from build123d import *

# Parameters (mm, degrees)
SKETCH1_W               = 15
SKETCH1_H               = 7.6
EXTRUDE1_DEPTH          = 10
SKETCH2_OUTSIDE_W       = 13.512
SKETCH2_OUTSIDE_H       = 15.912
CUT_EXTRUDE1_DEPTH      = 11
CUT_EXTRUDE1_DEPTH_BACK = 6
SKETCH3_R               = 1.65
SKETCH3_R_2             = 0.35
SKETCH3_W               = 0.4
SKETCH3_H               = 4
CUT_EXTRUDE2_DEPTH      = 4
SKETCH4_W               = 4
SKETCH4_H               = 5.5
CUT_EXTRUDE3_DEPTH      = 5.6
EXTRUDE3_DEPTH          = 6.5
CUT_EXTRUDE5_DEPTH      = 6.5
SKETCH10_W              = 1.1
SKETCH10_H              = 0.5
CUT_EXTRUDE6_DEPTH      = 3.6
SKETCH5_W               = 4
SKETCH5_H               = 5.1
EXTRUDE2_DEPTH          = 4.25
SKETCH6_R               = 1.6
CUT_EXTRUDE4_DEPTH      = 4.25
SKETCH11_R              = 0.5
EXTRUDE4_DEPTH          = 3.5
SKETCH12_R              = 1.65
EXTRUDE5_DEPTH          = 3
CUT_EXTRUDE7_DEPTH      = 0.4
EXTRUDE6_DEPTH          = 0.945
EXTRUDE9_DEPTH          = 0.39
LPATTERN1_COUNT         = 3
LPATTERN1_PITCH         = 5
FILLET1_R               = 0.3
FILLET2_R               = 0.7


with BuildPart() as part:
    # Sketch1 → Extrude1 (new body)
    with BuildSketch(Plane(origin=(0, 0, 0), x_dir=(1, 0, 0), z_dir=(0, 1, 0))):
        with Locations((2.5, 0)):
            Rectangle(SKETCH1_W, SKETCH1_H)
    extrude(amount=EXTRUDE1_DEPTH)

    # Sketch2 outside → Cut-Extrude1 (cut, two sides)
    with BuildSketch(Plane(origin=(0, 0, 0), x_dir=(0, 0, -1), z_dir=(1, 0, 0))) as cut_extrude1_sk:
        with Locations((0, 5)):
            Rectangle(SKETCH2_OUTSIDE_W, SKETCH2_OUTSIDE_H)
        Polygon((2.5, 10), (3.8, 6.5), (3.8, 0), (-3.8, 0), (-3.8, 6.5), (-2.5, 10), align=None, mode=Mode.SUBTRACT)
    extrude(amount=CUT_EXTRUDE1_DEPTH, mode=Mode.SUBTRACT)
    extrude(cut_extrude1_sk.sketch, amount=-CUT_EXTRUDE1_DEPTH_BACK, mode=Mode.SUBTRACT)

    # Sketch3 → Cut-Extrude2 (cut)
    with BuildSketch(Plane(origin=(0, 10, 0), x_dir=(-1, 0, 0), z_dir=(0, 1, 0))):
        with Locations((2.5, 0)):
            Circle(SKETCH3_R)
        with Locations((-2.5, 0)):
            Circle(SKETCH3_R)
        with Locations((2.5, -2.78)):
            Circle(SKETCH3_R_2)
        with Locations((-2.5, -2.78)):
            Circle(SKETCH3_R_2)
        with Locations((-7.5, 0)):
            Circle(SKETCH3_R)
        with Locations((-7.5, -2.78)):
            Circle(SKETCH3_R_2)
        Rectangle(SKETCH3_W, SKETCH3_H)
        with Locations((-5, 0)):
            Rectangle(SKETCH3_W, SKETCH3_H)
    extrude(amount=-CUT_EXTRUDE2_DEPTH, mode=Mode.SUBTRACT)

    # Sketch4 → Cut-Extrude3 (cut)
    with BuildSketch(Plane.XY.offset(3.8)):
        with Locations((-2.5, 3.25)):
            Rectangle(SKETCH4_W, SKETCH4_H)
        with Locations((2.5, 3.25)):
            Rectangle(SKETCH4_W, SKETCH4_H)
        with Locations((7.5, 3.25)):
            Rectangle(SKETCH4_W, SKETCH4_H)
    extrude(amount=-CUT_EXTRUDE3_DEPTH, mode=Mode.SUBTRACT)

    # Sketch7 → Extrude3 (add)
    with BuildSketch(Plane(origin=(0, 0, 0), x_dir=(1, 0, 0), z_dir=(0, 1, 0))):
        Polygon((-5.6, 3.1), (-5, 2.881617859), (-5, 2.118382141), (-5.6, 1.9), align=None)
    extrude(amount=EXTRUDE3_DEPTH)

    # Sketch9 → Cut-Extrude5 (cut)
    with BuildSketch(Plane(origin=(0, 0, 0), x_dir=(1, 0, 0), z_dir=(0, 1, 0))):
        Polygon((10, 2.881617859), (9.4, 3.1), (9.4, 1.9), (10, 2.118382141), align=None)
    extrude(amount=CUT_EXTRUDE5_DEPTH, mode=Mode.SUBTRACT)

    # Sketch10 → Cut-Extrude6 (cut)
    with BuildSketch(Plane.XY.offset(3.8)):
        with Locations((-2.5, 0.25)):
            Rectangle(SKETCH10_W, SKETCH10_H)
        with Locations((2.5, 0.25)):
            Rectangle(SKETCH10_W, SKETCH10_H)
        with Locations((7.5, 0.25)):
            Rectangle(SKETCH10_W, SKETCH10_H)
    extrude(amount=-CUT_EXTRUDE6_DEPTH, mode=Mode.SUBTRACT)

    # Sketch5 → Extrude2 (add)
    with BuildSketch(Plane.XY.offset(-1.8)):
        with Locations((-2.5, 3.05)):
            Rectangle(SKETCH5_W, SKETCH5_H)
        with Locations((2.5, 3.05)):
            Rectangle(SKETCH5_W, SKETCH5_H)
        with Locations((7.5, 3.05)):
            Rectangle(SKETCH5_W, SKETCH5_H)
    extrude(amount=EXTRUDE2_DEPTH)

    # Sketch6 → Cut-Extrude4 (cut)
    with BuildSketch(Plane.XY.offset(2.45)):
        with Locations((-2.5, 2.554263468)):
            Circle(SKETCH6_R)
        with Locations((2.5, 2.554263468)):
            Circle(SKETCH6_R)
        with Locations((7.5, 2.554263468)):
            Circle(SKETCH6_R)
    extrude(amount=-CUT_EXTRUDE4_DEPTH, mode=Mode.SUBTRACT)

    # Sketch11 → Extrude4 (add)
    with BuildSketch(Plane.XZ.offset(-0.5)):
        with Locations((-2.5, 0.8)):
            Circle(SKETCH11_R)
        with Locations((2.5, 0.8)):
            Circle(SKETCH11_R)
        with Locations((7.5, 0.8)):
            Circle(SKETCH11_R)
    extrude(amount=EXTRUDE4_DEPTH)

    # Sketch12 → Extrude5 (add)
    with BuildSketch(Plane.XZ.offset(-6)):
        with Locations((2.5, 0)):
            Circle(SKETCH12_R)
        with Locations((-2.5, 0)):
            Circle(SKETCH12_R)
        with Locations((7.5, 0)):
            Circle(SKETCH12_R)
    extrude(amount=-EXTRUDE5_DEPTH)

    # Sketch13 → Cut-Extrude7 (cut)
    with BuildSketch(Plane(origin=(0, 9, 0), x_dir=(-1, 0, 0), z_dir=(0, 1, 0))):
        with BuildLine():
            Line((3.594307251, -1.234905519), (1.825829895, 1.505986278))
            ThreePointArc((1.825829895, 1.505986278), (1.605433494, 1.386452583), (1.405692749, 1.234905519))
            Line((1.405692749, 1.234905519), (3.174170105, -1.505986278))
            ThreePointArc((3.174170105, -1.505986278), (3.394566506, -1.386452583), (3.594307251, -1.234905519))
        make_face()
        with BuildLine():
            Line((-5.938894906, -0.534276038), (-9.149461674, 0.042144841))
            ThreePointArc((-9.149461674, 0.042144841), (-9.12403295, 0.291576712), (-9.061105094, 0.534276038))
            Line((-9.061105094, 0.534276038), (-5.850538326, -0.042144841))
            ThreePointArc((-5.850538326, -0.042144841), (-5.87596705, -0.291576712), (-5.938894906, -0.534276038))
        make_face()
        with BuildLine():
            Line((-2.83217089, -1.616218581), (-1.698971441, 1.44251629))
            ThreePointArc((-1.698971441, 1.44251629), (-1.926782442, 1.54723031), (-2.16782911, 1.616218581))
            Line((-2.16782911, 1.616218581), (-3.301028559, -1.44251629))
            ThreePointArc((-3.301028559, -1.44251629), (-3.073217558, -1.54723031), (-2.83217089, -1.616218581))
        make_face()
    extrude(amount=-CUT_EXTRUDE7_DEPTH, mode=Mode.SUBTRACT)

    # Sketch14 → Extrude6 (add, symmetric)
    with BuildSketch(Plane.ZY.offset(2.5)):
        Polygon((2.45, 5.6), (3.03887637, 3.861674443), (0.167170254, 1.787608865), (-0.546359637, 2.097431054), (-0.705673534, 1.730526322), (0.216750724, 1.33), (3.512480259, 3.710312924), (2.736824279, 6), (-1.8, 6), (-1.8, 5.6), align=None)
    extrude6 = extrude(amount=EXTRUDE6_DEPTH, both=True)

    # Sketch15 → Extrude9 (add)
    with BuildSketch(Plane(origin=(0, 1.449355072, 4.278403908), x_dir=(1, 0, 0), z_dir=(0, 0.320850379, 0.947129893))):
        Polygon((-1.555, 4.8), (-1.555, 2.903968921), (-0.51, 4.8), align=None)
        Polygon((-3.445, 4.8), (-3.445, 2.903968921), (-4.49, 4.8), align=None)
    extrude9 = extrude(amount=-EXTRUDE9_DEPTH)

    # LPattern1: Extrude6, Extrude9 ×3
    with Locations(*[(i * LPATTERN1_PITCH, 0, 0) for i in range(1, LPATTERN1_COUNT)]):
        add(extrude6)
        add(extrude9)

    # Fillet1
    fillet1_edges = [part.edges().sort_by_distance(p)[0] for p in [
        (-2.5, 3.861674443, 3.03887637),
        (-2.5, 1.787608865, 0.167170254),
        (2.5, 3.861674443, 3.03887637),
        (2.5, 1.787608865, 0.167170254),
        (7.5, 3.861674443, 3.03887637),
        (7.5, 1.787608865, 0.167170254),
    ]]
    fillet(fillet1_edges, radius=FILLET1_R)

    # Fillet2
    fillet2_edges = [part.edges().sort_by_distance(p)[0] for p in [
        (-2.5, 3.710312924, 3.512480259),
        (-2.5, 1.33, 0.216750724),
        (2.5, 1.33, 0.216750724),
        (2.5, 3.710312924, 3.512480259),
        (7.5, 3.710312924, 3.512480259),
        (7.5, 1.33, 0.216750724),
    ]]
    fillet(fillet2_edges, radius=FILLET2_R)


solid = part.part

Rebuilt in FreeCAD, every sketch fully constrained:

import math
import FreeCAD as App
import Part
import Sketcher
Q = App.Units.Quantity


def edges_at(feature, points):
    """Names of the edges that pass closest to the given points."""
    edges = feature.Shape.Edges
    near = lambda p: min(range(len(edges)), key=lambda i: edges[i].distToShape(Part.Vertex(*p))[0])
    return sorted({f"Edge{near(p) + 1}" for p in points})

doc = App.newDocument("Part")
params = doc.addObject("Spreadsheet::Sheet", "Params")
for row, (alias, value) in enumerate([
    ("sketch1_width", "15 mm"),
    ("sketch1_height", "7.6 mm"),
    ("pad1_length", "10 mm"),
    ("sketch2_height", "5 mm"),
    ("sketch2_width", "6.5 mm"),
    ("sketch2_height2", "7.6 mm"),
    ("sketch3_diameter", "3.3 mm"),
    ("sketch3_diameter2", "0.7 mm"),
    ("sketch3_height", "4 mm"),
    ("sketch3_width", "0.4 mm"),
    ("pocket2_length", "4 mm"),
    ("sketch4_width", "4 mm"),
    ("sketch4_height", "5.5 mm"),
    ("pocket3_length", "5.6 mm"),
    ("sketch5_height", "1.2 mm"),
    ("pad2_length", "6.5 mm"),
    ("sketch6_height", "1.2 mm"),
    ("pocket4_length", "6.5 mm"),
    ("sketch7_width", "1.1 mm"),
    ("sketch7_height", "0.5 mm"),
    ("pocket5_length", "3.6 mm"),
    ("sketch8_width", "4 mm"),
    ("sketch8_height", "5.1 mm"),
    ("pad3_length", "4.25 mm"),
    ("sketch9_diameter", "3.2 mm"),
    ("pocket6_length", "4.25 mm"),
    ("sketch10_diameter", "1 mm"),
    ("pad4_length", "3.5 mm"),
    ("sketch11_diameter", "3.3 mm"),
    ("pad5_length", "3 mm"),
    ("sketch12_radius", "1.65 mm"),
    ("pocket7_length", "0.4 mm"),
    ("sketch13_width", "0.4 mm"),
    ("sketch13_length", "0.4 mm"),
    ("sketch13_height", "4.25 mm"),
    ("pad6_length", "1.89 mm"),
    ("pad7_length", "0.39 mm"),
    ("linearpattern_pitch", "5 mm"),
    ("fillet_radius", "0.3 mm"),
    ("fillet2_radius", "0.7 mm"),
], start=1):
    params.set(f"A{row}", alias)
    params.set(f"B{row}", "=" + value)
    params.setAlias(f"B{row}", alias)

body = doc.addObject("PartDesign::Body", "Body")

# Sketch on XZ plane
sketch1 = doc.addObject("Sketcher::SketchObject", "Sketch")
body.addObject(sketch1)
sketch1.AttachmentSupport = (doc.XZ_Plane, [""])
sketch1.MapMode = "FlatFace"
sketch1.addGeometry([
    Part.LineSegment(App.Vector(-5, -4, 0), App.Vector(-5, 4, 0)),
    Part.LineSegment(App.Vector(-5, 4, 0), App.Vector(10, 4, 0)),
    Part.LineSegment(App.Vector(10, 4, 0), App.Vector(10, -4, 0)),
    Part.LineSegment(App.Vector(10, -4, 0), App.Vector(-5, -4, 0)),
], False)
sketch1.addConstraint([
    Sketcher.Constraint("Coincident", 0, 2, 1, 1),
    Sketcher.Constraint("Coincident", 1, 2, 2, 1),
    Sketcher.Constraint("Coincident", 2, 2, 3, 1),
    Sketcher.Constraint("Coincident", 3, 2, 0, 1),
    Sketcher.Constraint("Vertical", 0),
    Sketcher.Constraint("Horizontal", 1),
    Sketcher.Constraint("Vertical", 2),
    Sketcher.Constraint("Horizontal", 3),
    Sketcher.Constraint("DistanceX", 1, 1, 1, 2, Q("15 mm")),
    Sketcher.Constraint("DistanceY", 0, 1, 0, 2, Q("7.6 mm")),
    Sketcher.Constraint("DistanceX", 0, 2, -1, 1, Q("5 mm")),
    Sketcher.Constraint("DistanceY", -1, 1, 0, 2, Q("3.8 mm")),
])
sketch1.setExpression("Constraints[8]", "Params.sketch1_width")
sketch1.setExpression("Constraints[9]", "Params.sketch1_height")
pad1 = doc.addObject("PartDesign::Pad", "Pad")
body.addObject(pad1)
pad1.Profile = sketch1
pad1.setExpression("Length", "Params.pad1_length")
pad1.Reversed = True

# Sketch on YZ plane
sketch2 = doc.addObject("Sketcher::SketchObject", "Sketch001")
body.addObject(sketch2)
sketch2.AttachmentSupport = (doc.YZ_Plane, [""])
sketch2.MapMode = "FlatFace"
sketch2.addGeometry([
    Part.LineSegment(App.Vector(13, 6.8, 0), App.Vector(-3, 6.8, 0)),  # 0
    Part.LineSegment(App.Vector(-3, 6.8, 0), App.Vector(-3, -6.8, 0)),  # 1
    Part.LineSegment(App.Vector(-3, -6.8, 0), App.Vector(13, -6.8, 0)),  # 2
    Part.LineSegment(App.Vector(13, -6.8, 0), App.Vector(13, 6.8, 0)),  # 3
    Part.LineSegment(App.Vector(10, 2.5, 0), App.Vector(10, -2.5, 0)),  # 4
    Part.LineSegment(App.Vector(10, -2.5, 0), App.Vector(6.5, -3.8, 0)),  # 5
    Part.LineSegment(App.Vector(6.5, -3.8, 0), App.Vector(0, -3.8, 0)),  # 6
    Part.LineSegment(App.Vector(0, -3.8, 0), App.Vector(0, 3.8, 0)),  # 7
    Part.LineSegment(App.Vector(0, 3.8, 0), App.Vector(6.5, 3.8, 0)),  # 8
    Part.LineSegment(App.Vector(6.5, 3.8, 0), App.Vector(10, 2.5, 0)),  # 9
], False)
sketch2.addConstraint([
    Sketcher.Constraint("Coincident", 0, 2, 1, 1),
    Sketcher.Constraint("Coincident", 1, 2, 2, 1),
    Sketcher.Constraint("Coincident", 2, 2, 3, 1),
    Sketcher.Constraint("Coincident", 3, 2, 0, 1),
    Sketcher.Constraint("Coincident", 4, 2, 5, 1),
    Sketcher.Constraint("Coincident", 5, 2, 6, 1),
    Sketcher.Constraint("Coincident", 6, 2, 7, 1),
    Sketcher.Constraint("Coincident", 7, 2, 8, 1),
    Sketcher.Constraint("Coincident", 8, 2, 9, 1),
    Sketcher.Constraint("Coincident", 9, 2, 4, 1),
    Sketcher.Constraint("Horizontal", 0),
    Sketcher.Constraint("Vertical", 1),
    Sketcher.Constraint("Horizontal", 2),
    Sketcher.Constraint("Vertical", 3),
    Sketcher.Constraint("Vertical", 4),
    Sketcher.Constraint("Horizontal", 6),
    Sketcher.Constraint("Vertical", 7),
    Sketcher.Constraint("Horizontal", 8),
    Sketcher.Constraint("Symmetric", 6, 2, 7, 2, -1, 1),
    Sketcher.Constraint("Vertical", 5, 2, 8, 2),
    Sketcher.Constraint("Equal", 5, 9),
    Sketcher.Constraint("DistanceY", 4, 2, 4, 1, Q("5 mm")),
    Sketcher.Constraint("DistanceX", 6, 2, 6, 1, Q("6.5 mm")),
    Sketcher.Constraint("DistanceY", 7, 1, 7, 2, Q("7.6 mm")),
    Sketcher.Constraint("DistanceX", -1, 1, 4, 2, Q("10 mm")),
    Sketcher.Constraint("DistanceX", 0, 2, 0, 1, Q("15.912 mm")),
    Sketcher.Constraint("DistanceY", 1, 2, 1, 1, Q("13.512 mm")),
    Sketcher.Constraint("DistanceX", 0, 2, -1, 1, Q("2.956 mm")),
    Sketcher.Constraint("DistanceY", -1, 1, 0, 2, Q("6.756 mm")),
])
sketch2.setExpression("Constraints[21]", "Params.sketch2_height")
sketch2.setExpression("Constraints[22]", "Params.sketch2_width")
sketch2.setExpression("Constraints[23]", "Params.sketch2_height2")
pocket1 = doc.addObject("PartDesign::Pocket", "Pocket")
body.addObject(pocket1)
pocket1.Profile = sketch2
pocket1.Type = "ThroughAll"
pocket1.Midplane = True

# Sketch on XZ plane
sketch3 = doc.addObject("Sketcher::SketchObject", "Sketch002")
body.addObject(sketch3)
sketch3.AttachmentSupport = (doc.XZ_Plane, [""])
sketch3.MapMode = "FlatFace"
sketch3.AttachmentOffset = App.Placement(App.Vector(0, 0, -10), App.Rotation())
sketch3.addGeometry([
    Part.Circle(App.Vector(-2.5, 0, 0), App.Vector(0, 0, 1), 1.65),  # 0
    Part.Circle(App.Vector(2.5, 0, 0), App.Vector(0, 0, 1), 1.65),  # 1
    Part.Circle(App.Vector(-2.5, -2.78, 0), App.Vector(0, 0, 1), 0.35),  # 2
    Part.Circle(App.Vector(2.5, -2.78, 0), App.Vector(0, 0, 1), 0.35),  # 3
    Part.Circle(App.Vector(7.5, 0, 0), App.Vector(0, 0, 1), 1.65),  # 4
    Part.Circle(App.Vector(7.5, -2.78, 0), App.Vector(0, 0, 1), 0.35),  # 5
    Part.LineSegment(App.Vector(0.2, 2, 0), App.Vector(0.2, -2, 0)),  # 6
    Part.LineSegment(App.Vector(0.2, -2, 0), App.Vector(-0.2, -2, 0)),  # 7
    Part.LineSegment(App.Vector(-0.2, -2, 0), App.Vector(-0.2, 2, 0)),  # 8
    Part.LineSegment(App.Vector(-0.2, 2, 0), App.Vector(0.2, 2, 0)),  # 9
    Part.LineSegment(App.Vector(5.2, 2, 0), App.Vector(5.2, -2, 0)),  # 10
    Part.LineSegment(App.Vector(5.2, -2, 0), App.Vector(4.8, -2, 0)),  # 11
    Part.LineSegment(App.Vector(4.8, -2, 0), App.Vector(4.8, 2, 0)),  # 12
    Part.LineSegment(App.Vector(4.8, 2, 0), App.Vector(5.2, 2, 0)),  # 13
], False)
sketch3.addConstraint([
    Sketcher.Constraint("Coincident", 6, 2, 7, 1),
    Sketcher.Constraint("Coincident", 7, 2, 8, 1),
    Sketcher.Constraint("Coincident", 8, 2, 9, 1),
    Sketcher.Constraint("Coincident", 9, 2, 6, 1),
    Sketcher.Constraint("Coincident", 10, 2, 11, 1),
    Sketcher.Constraint("Coincident", 11, 2, 12, 1),
    Sketcher.Constraint("Coincident", 12, 2, 13, 1),
    Sketcher.Constraint("Coincident", 13, 2, 10, 1),
    Sketcher.Constraint("Vertical", 6),
    Sketcher.Constraint("Horizontal", 7),
    Sketcher.Constraint("Vertical", 8),
    Sketcher.Constraint("Horizontal", 9),
    Sketcher.Constraint("Vertical", 10),
    Sketcher.Constraint("Horizontal", 11),
    Sketcher.Constraint("Vertical", 12),
    Sketcher.Constraint("Horizontal", 13),
    Sketcher.Constraint("Equal", 0, 1),
    Sketcher.Constraint("Equal", 2, 3),
    Sketcher.Constraint("Equal", 1, 4),
    Sketcher.Constraint("Equal", 3, 5),
    Sketcher.Constraint("Symmetric", 0, 3, 1, 3, -1, 1),
    Sketcher.Constraint("Symmetric", 6, 2, 8, 2, -1, 1),
    Sketcher.Constraint("Symmetric", 2, 3, 3, 3, -2),
    Sketcher.Constraint("PointOnObject", 0, 3, -1),
    Sketcher.Constraint("PointOnObject", 4, 3, -1),
    Sketcher.Constraint("Horizontal", 3, 3, 5, 3),
    Sketcher.Constraint("Horizontal", 7, 2, 10, 2),
    Sketcher.Constraint("Horizontal", 9, 2, 12, 2),
    Sketcher.Constraint("Vertical", 0, 3, 2, 3),
    Sketcher.Constraint("Vertical", 4, 3, 5, 3),
    Sketcher.Constraint("Equal", 9, 11),
    Sketcher.Constraint("Diameter", 0, Q("3.3 mm")),
    Sketcher.Constraint("Diameter", 2, Q("0.7 mm")),
    Sketcher.Constraint("DistanceY", 6, 2, 6, 1, Q("4 mm")),
    Sketcher.Constraint("DistanceX", 7, 2, 7, 1, Q("0.4 mm")),
    Sketcher.Constraint("DistanceX", 0, 3, 1, 3, Q("5 mm")),
    Sketcher.Constraint("DistanceX", 1, 3, 4, 3, Q("5 mm")),
    Sketcher.Constraint("DistanceX", 6, 2, 10, 2, Q("5 mm")),
    Sketcher.Constraint("DistanceY", 2, 3, -1, 1, Q("2.78 mm")),
])
sketch3.setExpression("Constraints[31]", "Params.sketch3_diameter")
sketch3.setExpression("Constraints[32]", "Params.sketch3_diameter2")
sketch3.setExpression("Constraints[33]", "Params.sketch3_height")
sketch3.setExpression("Constraints[34]", "Params.sketch3_width")
pocket2 = doc.addObject("PartDesign::Pocket", "Pocket001")
body.addObject(pocket2)
pocket2.Profile = sketch3
pocket2.setExpression("Length", "Params.pocket2_length")
pocket2.Reversed = True

# Sketch on XY plane
sketch4 = doc.addObject("Sketcher::SketchObject", "Sketch003")
body.addObject(sketch4)
sketch4.AttachmentSupport = (doc.XY_Plane, [""])
sketch4.MapMode = "FlatFace"
sketch4.AttachmentOffset = App.Placement(App.Vector(0, 0, 3.8), App.Rotation())
sketch4.addGeometry([
    Part.LineSegment(App.Vector(-4.5, 6, 0), App.Vector(-4.5, 0.5, 0)),  # 0
    Part.LineSegment(App.Vector(-4.5, 0.5, 0), App.Vector(-0.5, 0.5, 0)),  # 1
    Part.LineSegment(App.Vector(-0.5, 0.5, 0), App.Vector(-0.5, 6, 0)),  # 2
    Part.LineSegment(App.Vector(-0.5, 6, 0), App.Vector(-4.5, 6, 0)),  # 3
    Part.LineSegment(App.Vector(0.5, 6, 0), App.Vector(0.5, 0.5, 0)),  # 4
    Part.LineSegment(App.Vector(0.5, 0.5, 0), App.Vector(4.5, 0.5, 0)),  # 5
    Part.LineSegment(App.Vector(4.5, 0.5, 0), App.Vector(4.5, 6, 0)),  # 6
    Part.LineSegment(App.Vector(4.5, 6, 0), App.Vector(0.5, 6, 0)),  # 7
    Part.LineSegment(App.Vector(5.5, 6, 0), App.Vector(5.5, 0.5, 0)),  # 8
    Part.LineSegment(App.Vector(5.5, 0.5, 0), App.Vector(9.5, 0.5, 0)),  # 9
    Part.LineSegment(App.Vector(9.5, 0.5, 0), App.Vector(9.5, 6, 0)),  # 10
    Part.LineSegment(App.Vector(9.5, 6, 0), App.Vector(5.5, 6, 0)),  # 11
], False)
sketch4.addConstraint([
    Sketcher.Constraint("Coincident", 0, 2, 1, 1),
    Sketcher.Constraint("Coincident", 1, 2, 2, 1),
    Sketcher.Constraint("Coincident", 2, 2, 3, 1),
    Sketcher.Constraint("Coincident", 3, 2, 0, 1),
    Sketcher.Constraint("Coincident", 4, 2, 5, 1),
    Sketcher.Constraint("Coincident", 5, 2, 6, 1),
    Sketcher.Constraint("Coincident", 6, 2, 7, 1),
    Sketcher.Constraint("Coincident", 7, 2, 4, 1),
    Sketcher.Constraint("Coincident", 8, 2, 9, 1),
    Sketcher.Constraint("Coincident", 9, 2, 10, 1),
    Sketcher.Constraint("Coincident", 10, 2, 11, 1),
    Sketcher.Constraint("Coincident", 11, 2, 8, 1),
    Sketcher.Constraint("Vertical", 0),
    Sketcher.Constraint("Horizontal", 1),
    Sketcher.Constraint("Vertical", 2),
    Sketcher.Constraint("Horizontal", 3),
    Sketcher.Constraint("Vertical", 4),
    Sketcher.Constraint("Horizontal", 5),
    Sketcher.Constraint("Vertical", 6),
    Sketcher.Constraint("Horizontal", 7),
    Sketcher.Constraint("Vertical", 8),
    Sketcher.Constraint("Horizontal", 9),
    Sketcher.Constraint("Vertical", 10),
    Sketcher.Constraint("Horizontal", 11),
    Sketcher.Constraint("Symmetric", 1, 2, 4, 2, -2),
    Sketcher.Constraint("Symmetric", 3, 2, 6, 2, -2),
    Sketcher.Constraint("Horizontal", 5, 2, 8, 2),
    Sketcher.Constraint("Horizontal", 7, 2, 10, 2),
    Sketcher.Constraint("Equal", 7, 9),
    Sketcher.Constraint("DistanceX", 1, 1, 1, 2, Q("4 mm")),
    Sketcher.Constraint("DistanceY", 0, 2, 0, 1, Q("5.5 mm")),
    Sketcher.Constraint("DistanceY", -1, 1, 2, 2, Q("6 mm")),
    Sketcher.Constraint("DistanceX", 1, 2, 4, 2, Q("1 mm")),
    Sketcher.Constraint("DistanceX", 5, 2, 8, 2, Q("1 mm")),
])
sketch4.setExpression("Constraints[29]", "Params.sketch4_width")
sketch4.setExpression("Constraints[30]", "Params.sketch4_height")
pocket3 = doc.addObject("PartDesign::Pocket", "Pocket002")
body.addObject(pocket3)
pocket3.Profile = sketch4
pocket3.setExpression("Length", "Params.pocket3_length")

# Sketch on XZ plane
sketch5 = doc.addObject("Sketcher::SketchObject", "Sketch004")
body.addObject(sketch5)
sketch5.AttachmentSupport = (doc.XZ_Plane, [""])
sketch5.MapMode = "FlatFace"
sketch5.addGeometry([
    Part.LineSegment(App.Vector(-5, -2.9, 0), App.Vector(-5.6, -3.1, 0)),
    Part.LineSegment(App.Vector(-5.6, -3.1, 0), App.Vector(-5.6, -1.9, 0)),
    Part.LineSegment(App.Vector(-5.6, -1.9, 0), App.Vector(-5, -2.1, 0)),
    Part.LineSegment(App.Vector(-5, -2.1, 0), App.Vector(-5, -2.9, 0)),
], False)
sketch5.addConstraint([
    Sketcher.Constraint("Coincident", 0, 2, 1, 1),
    Sketcher.Constraint("Coincident", 1, 2, 2, 1),
    Sketcher.Constraint("Coincident", 2, 2, 3, 1),
    Sketcher.Constraint("Coincident", 3, 2, 0, 1),
    Sketcher.Constraint("Vertical", 1),
    Sketcher.Constraint("Vertical", 3),
    Sketcher.Constraint("Equal", 0, 2),
    Sketcher.Constraint("Angle", 0, Q("-160 deg")),
    Sketcher.Constraint("DistanceY", 1, 1, 1, 2, Q("1.2 mm")),
    Sketcher.Constraint("DistanceX", 2, 2, -1, 1, Q("5 mm")),
    Sketcher.Constraint("DistanceX", 0, 2, -1, 1, Q("5.6 mm")),
    Sketcher.Constraint("DistanceY", 0, 2, -1, 1, Q("3.1 mm")),
])
sketch5.setExpression("Constraints[8]", "Params.sketch5_height")
pad2 = doc.addObject("PartDesign::Pad", "Pad001")
body.addObject(pad2)
pad2.Profile = sketch5
pad2.setExpression("Length", "Params.pad2_length")
pad2.Reversed = True

# Sketch on XZ plane
sketch6 = doc.addObject("Sketcher::SketchObject", "Sketch005")
body.addObject(sketch6)
sketch6.AttachmentSupport = (doc.XZ_Plane, [""])
sketch6.MapMode = "FlatFace"
sketch6.addGeometry([
    Part.LineSegment(App.Vector(10, -2.9, 0), App.Vector(9.4, -3.1, 0)),
    Part.LineSegment(App.Vector(9.4, -3.1, 0), App.Vector(9.4, -1.9, 0)),
    Part.LineSegment(App.Vector(9.4, -1.9, 0), App.Vector(10, -2.1, 0)),
    Part.LineSegment(App.Vector(10, -2.1, 0), App.Vector(10, -2.9, 0)),
], False)
sketch6.addConstraint([
    Sketcher.Constraint("Coincident", 0, 2, 1, 1),
    Sketcher.Constraint("Coincident", 1, 2, 2, 1),
    Sketcher.Constraint("Coincident", 2, 2, 3, 1),
    Sketcher.Constraint("Coincident", 3, 2, 0, 1),
    Sketcher.Constraint("Vertical", 1),
    Sketcher.Constraint("Vertical", 3),
    Sketcher.Constraint("Equal", 0, 2),
    Sketcher.Constraint("Angle", 0, Q("-160 deg")),
    Sketcher.Constraint("DistanceY", 1, 1, 1, 2, Q("1.2 mm")),
    Sketcher.Constraint("DistanceX", -1, 1, 2, 2, Q("10 mm")),
    Sketcher.Constraint("DistanceX", -1, 1, 0, 2, Q("9.4 mm")),
    Sketcher.Constraint("DistanceY", 0, 2, -1, 1, Q("3.1 mm")),
])
sketch6.setExpression("Constraints[8]", "Params.sketch6_height")
pocket4 = doc.addObject("PartDesign::Pocket", "Pocket003")
body.addObject(pocket4)
pocket4.Profile = sketch6
pocket4.setExpression("Length", "Params.pocket4_length")

# Sketch on XY plane
sketch7 = doc.addObject("Sketcher::SketchObject", "Sketch006")
body.addObject(sketch7)
sketch7.AttachmentSupport = (doc.XY_Plane, [""])
sketch7.MapMode = "FlatFace"
sketch7.AttachmentOffset = App.Placement(App.Vector(0, 0, 3.8), App.Rotation())
sketch7.addGeometry([
    Part.LineSegment(App.Vector(-3, 0.5, 0), App.Vector(-3, 0, 0)),  # 0
    Part.LineSegment(App.Vector(-3, 0, 0), App.Vector(-1.9, 0, 0)),  # 1
    Part.LineSegment(App.Vector(-1.9, 0, 0), App.Vector(-1.9, 0.5, 0)),  # 2
    Part.LineSegment(App.Vector(-1.9, 0.5, 0), App.Vector(-3, 0.5, 0)),  # 3
    Part.LineSegment(App.Vector(1.9, 0.5, 0), App.Vector(1.9, 0, 0)),  # 4
    Part.LineSegment(App.Vector(1.9, 0, 0), App.Vector(3, 0, 0)),  # 5
    Part.LineSegment(App.Vector(3, 0, 0), App.Vector(3, 0.5, 0)),  # 6
    Part.LineSegment(App.Vector(3, 0.5, 0), App.Vector(1.9, 0.5, 0)),  # 7
    Part.LineSegment(App.Vector(7, 0.5, 0), App.Vector(7, 0, 0)),  # 8
    Part.LineSegment(App.Vector(7, 0, 0), App.Vector(8.1, 0, 0)),  # 9
    Part.LineSegment(App.Vector(8.1, 0, 0), App.Vector(8.1, 0.5, 0)),  # 10
    Part.LineSegment(App.Vector(8.1, 0.5, 0), App.Vector(7, 0.5, 0)),  # 11
], False)
sketch7.addConstraint([
    Sketcher.Constraint("Coincident", 0, 2, 1, 1),
    Sketcher.Constraint("Coincident", 1, 2, 2, 1),
    Sketcher.Constraint("Coincident", 2, 2, 3, 1),
    Sketcher.Constraint("Coincident", 3, 2, 0, 1),
    Sketcher.Constraint("Coincident", 4, 2, 5, 1),
    Sketcher.Constraint("Coincident", 5, 2, 6, 1),
    Sketcher.Constraint("Coincident", 6, 2, 7, 1),
    Sketcher.Constraint("Coincident", 7, 2, 4, 1),
    Sketcher.Constraint("Coincident", 8, 2, 9, 1),
    Sketcher.Constraint("Coincident", 9, 2, 10, 1),
    Sketcher.Constraint("Coincident", 10, 2, 11, 1),
    Sketcher.Constraint("Coincident", 11, 2, 8, 1),
    Sketcher.Constraint("Vertical", 0),
    Sketcher.Constraint("Horizontal", 1),
    Sketcher.Constraint("Vertical", 2),
    Sketcher.Constraint("Horizontal", 3),
    Sketcher.Constraint("Vertical", 4),
    Sketcher.Constraint("Horizontal", 5),
    Sketcher.Constraint("Vertical", 6),
    Sketcher.Constraint("Horizontal", 7),
    Sketcher.Constraint("Vertical", 8),
    Sketcher.Constraint("Horizontal", 9),
    Sketcher.Constraint("Vertical", 10),
    Sketcher.Constraint("Horizontal", 11),
    Sketcher.Constraint("Symmetric", 1, 2, 4, 2, -1, 1),
    Sketcher.Constraint("Symmetric", 0, 2, 5, 2, -2),
    Sketcher.Constraint("PointOnObject", 8, 2, -1),
    Sketcher.Constraint("Horizontal", 3, 2, 6, 2),
    Sketcher.Constraint("Horizontal", 7, 2, 10, 2),
    Sketcher.Constraint("Equal", 7, 9),
    Sketcher.Constraint("DistanceX", 1, 1, 1, 2, Q("1.1 mm")),
    Sketcher.Constraint("DistanceY", 0, 2, 0, 1, Q("0.5 mm")),
    Sketcher.Constraint("DistanceX", 0, 2, 4, 2, Q("5 mm")),
    Sketcher.Constraint("DistanceX", 4, 2, 8, 2, Q("5 mm")),
])
sketch7.setExpression("Constraints[30]", "Params.sketch7_width")
sketch7.setExpression("Constraints[31]", "Params.sketch7_height")
pocket5 = doc.addObject("PartDesign::Pocket", "Pocket004")
body.addObject(pocket5)
pocket5.Profile = sketch7
pocket5.setExpression("Length", "Params.pocket5_length")

# Sketch on XY plane
sketch8 = doc.addObject("Sketcher::SketchObject", "Sketch007")
body.addObject(sketch8)
sketch8.AttachmentSupport = (doc.XY_Plane, [""])
sketch8.MapMode = "FlatFace"
sketch8.AttachmentOffset = App.Placement(App.Vector(0, 0, -1.8), App.Rotation())
sketch8.addGeometry([
    Part.LineSegment(App.Vector(-4.5, 5.6, 0), App.Vector(-4.5, 0.5, 0)),  # 0
    Part.LineSegment(App.Vector(-4.5, 0.5, 0), App.Vector(-0.5, 0.5, 0)),  # 1
    Part.LineSegment(App.Vector(-0.5, 0.5, 0), App.Vector(-0.5, 5.6, 0)),  # 2
    Part.LineSegment(App.Vector(-0.5, 5.6, 0), App.Vector(-4.5, 5.6, 0)),  # 3
    Part.LineSegment(App.Vector(0.5, 5.6, 0), App.Vector(0.5, 0.5, 0)),  # 4
    Part.LineSegment(App.Vector(0.5, 0.5, 0), App.Vector(4.5, 0.5, 0)),  # 5
    Part.LineSegment(App.Vector(4.5, 0.5, 0), App.Vector(4.5, 5.6, 0)),  # 6
    Part.LineSegment(App.Vector(4.5, 5.6, 0), App.Vector(0.5, 5.6, 0)),  # 7
    Part.LineSegment(App.Vector(5.5, 5.6, 0), App.Vector(5.5, 0.5, 0)),  # 8
    Part.LineSegment(App.Vector(5.5, 0.5, 0), App.Vector(9.5, 0.5, 0)),  # 9
    Part.LineSegment(App.Vector(9.5, 0.5, 0), App.Vector(9.5, 5.6, 0)),  # 10
    Part.LineSegment(App.Vector(9.5, 5.6, 0), App.Vector(5.5, 5.6, 0)),  # 11
], False)
sketch8.addConstraint([
    Sketcher.Constraint("Coincident", 0, 2, 1, 1),
    Sketcher.Constraint("Coincident", 1, 2, 2, 1),
    Sketcher.Constraint("Coincident", 2, 2, 3, 1),
    Sketcher.Constraint("Coincident", 3, 2, 0, 1),
    Sketcher.Constraint("Coincident", 4, 2, 5, 1),
    Sketcher.Constraint("Coincident", 5, 2, 6, 1),
    Sketcher.Constraint("Coincident", 6, 2, 7, 1),
    Sketcher.Constraint("Coincident", 7, 2, 4, 1),
    Sketcher.Constraint("Coincident", 8, 2, 9, 1),
    Sketcher.Constraint("Coincident", 9, 2, 10, 1),
    Sketcher.Constraint("Coincident", 10, 2, 11, 1),
    Sketcher.Constraint("Coincident", 11, 2, 8, 1),
    Sketcher.Constraint("Vertical", 0),
    Sketcher.Constraint("Horizontal", 1),
    Sketcher.Constraint("Vertical", 2),
    Sketcher.Constraint("Horizontal", 3),
    Sketcher.Constraint("Vertical", 4),
    Sketcher.Constraint("Horizontal", 5),
    Sketcher.Constraint("Vertical", 6),
    Sketcher.Constraint("Horizontal", 7),
    Sketcher.Constraint("Vertical", 8),
    Sketcher.Constraint("Horizontal", 9),
    Sketcher.Constraint("Vertical", 10),
    Sketcher.Constraint("Horizontal", 11),
    Sketcher.Constraint("Symmetric", 1, 2, 4, 2, -2),
    Sketcher.Constraint("Symmetric", 3, 2, 6, 2, -2),
    Sketcher.Constraint("Horizontal", 5, 2, 8, 2),
    Sketcher.Constraint("Horizontal", 7, 2, 10, 2),
    Sketcher.Constraint("Equal", 7, 9),
    Sketcher.Constraint("DistanceX", 1, 1, 1, 2, Q("4 mm")),
    Sketcher.Constraint("DistanceY", 0, 2, 0, 1, Q("5.1 mm")),
    Sketcher.Constraint("DistanceX", 1, 2, 4, 2, Q("1 mm")),
    Sketcher.Constraint("DistanceX", 5, 2, 8, 2, Q("1 mm")),
    Sketcher.Constraint("DistanceY", -1, 1, 0, 2, Q("0.5 mm")),
])
sketch8.setExpression("Constraints[29]", "Params.sketch8_width")
sketch8.setExpression("Constraints[30]", "Params.sketch8_height")
pad3 = doc.addObject("PartDesign::Pad", "Pad002")
body.addObject(pad3)
pad3.Profile = sketch8
pad3.setExpression("Length", "Params.pad3_length")

# Sketch on XY plane
sketch9 = doc.addObject("Sketcher::SketchObject", "Sketch008")
body.addObject(sketch9)
sketch9.AttachmentSupport = (doc.XY_Plane, [""])
sketch9.MapMode = "FlatFace"
sketch9.AttachmentOffset = App.Placement(App.Vector(0, 0, 2.45), App.Rotation())
sketch9.addGeometry([
    Part.Circle(App.Vector(-2.5, 2.6, 0), App.Vector(0, 0, 1), 1.6),
    Part.Circle(App.Vector(2.5, 2.6, 0), App.Vector(0, 0, 1), 1.6),
    Part.Circle(App.Vector(7.5, 2.6, 0), App.Vector(0, 0, 1), 1.6),
], False)
sketch9.addConstraint([
    Sketcher.Constraint("Equal", 0, 1),
    Sketcher.Constraint("Equal", 1, 2),
    Sketcher.Constraint("Symmetric", 0, 3, 1, 3, -2),
    Sketcher.Constraint("Horizontal", 1, 3, 2, 3),
    Sketcher.Constraint("Diameter", 0, Q("3.2 mm")),
    Sketcher.Constraint("DistanceX", 0, 3, 1, 3, Q("5 mm")),
    Sketcher.Constraint("DistanceX", 1, 3, 2, 3, Q("5 mm")),
    Sketcher.Constraint("DistanceY", -1, 1, 0, 3, Q("2.554263 mm")),
])
sketch9.setExpression("Constraints[4]", "Params.sketch9_diameter")
pocket6 = doc.addObject("PartDesign::Pocket", "Pocket005")
body.addObject(pocket6)
pocket6.Profile = sketch9
pocket6.setExpression("Length", "Params.pocket6_length")

# Sketch on XZ plane
sketch10 = doc.addObject("Sketcher::SketchObject", "Sketch009")
body.addObject(sketch10)
sketch10.AttachmentSupport = (doc.XZ_Plane, [""])
sketch10.MapMode = "FlatFace"
sketch10.AttachmentOffset = App.Placement(App.Vector(0, 0, -0.5), App.Rotation())
sketch10.addGeometry([
    Part.Circle(App.Vector(-2.5, 0.8, 0), App.Vector(0, 0, 1), 0.5),
    Part.Circle(App.Vector(2.5, 0.8, 0), App.Vector(0, 0, 1), 0.5),
    Part.Circle(App.Vector(7.5, 0.8, 0), App.Vector(0, 0, 1), 0.5),
], False)
sketch10.addConstraint([
    Sketcher.Constraint("Equal", 0, 1),
    Sketcher.Constraint("Equal", 1, 2),
    Sketcher.Constraint("Symmetric", 0, 3, 1, 3, -2),
    Sketcher.Constraint("Horizontal", 1, 3, 2, 3),
    Sketcher.Constraint("Diameter", 0, Q("1 mm")),
    Sketcher.Constraint("DistanceX", 0, 3, 1, 3, Q("5 mm")),
    Sketcher.Constraint("DistanceX", 1, 3, 2, 3, Q("5 mm")),
    Sketcher.Constraint("DistanceY", -1, 1, 0, 3, Q("0.8 mm")),
])
sketch10.setExpression("Constraints[4]", "Params.sketch10_diameter")
pad4 = doc.addObject("PartDesign::Pad", "Pad003")
body.addObject(pad4)
pad4.Profile = sketch10
pad4.setExpression("Length", "Params.pad4_length")

# Sketch on XZ plane
sketch11 = doc.addObject("Sketcher::SketchObject", "Sketch010")
body.addObject(sketch11)
sketch11.AttachmentSupport = (doc.XZ_Plane, [""])
sketch11.MapMode = "FlatFace"
sketch11.AttachmentOffset = App.Placement(App.Vector(0, 0, -6), App.Rotation())
sketch11.addGeometry([
    Part.Circle(App.Vector(2.5, 0, 0), App.Vector(0, 0, 1), 1.6),
    Part.Circle(App.Vector(-2.5, 0, 0), App.Vector(0, 0, 1), 1.6),
    Part.Circle(App.Vector(7.5, 0, 0), App.Vector(0, 0, 1), 1.6),
], False)
sketch11.addConstraint([
    Sketcher.Constraint("Equal", 0, 1),
    Sketcher.Constraint("Equal", 1, 2),
    Sketcher.Constraint("Symmetric", 0, 3, 1, 3, -1, 1),
    Sketcher.Constraint("PointOnObject", 0, 3, -1),
    Sketcher.Constraint("PointOnObject", 2, 3, -1),
    Sketcher.Constraint("Diameter", 0, Q("3.3 mm")),
    Sketcher.Constraint("DistanceX", 1, 3, 0, 3, Q("5 mm")),
    Sketcher.Constraint("DistanceX", 0, 3, 2, 3, Q("5 mm")),
])
sketch11.setExpression("Constraints[5]", "Params.sketch11_diameter")
pad5 = doc.addObject("PartDesign::Pad", "Pad004")
body.addObject(pad5)
pad5.Profile = sketch11
pad5.setExpression("Length", "Params.pad5_length")
pad5.Reversed = True

# Sketch on XZ plane
sketch12 = doc.addObject("Sketcher::SketchObject", "Sketch011")
body.addObject(sketch12)
sketch12.AttachmentSupport = (doc.XZ_Plane, [""])
sketch12.MapMode = "FlatFace"
sketch12.AttachmentOffset = App.Placement(App.Vector(0, 0, -9), App.Rotation())
sketch12.addGeometry([
    Part.LineSegment(App.Vector(-3.59, -1.23, 0), App.Vector(-1.83, 1.51, 0)),  # 0
    Part.ArcOfCircle(Part.Circle(App.Vector(-2.5, 0, 0), App.Vector(0, 0, 1), 1.65), math.radians(48.45), math.radians(65.88)),  # 1
    Part.LineSegment(App.Vector(-1.41, 1.23, 0), App.Vector(-3.17, -1.51, 0)),  # 2
    Part.ArcOfCircle(Part.Circle(App.Vector(-2.5, 0, 0), App.Vector(0, 0, 1), 1.65), math.radians(-131.55), math.radians(-114.12)),  # 3
    Part.LineSegment(App.Vector(9.15, 0.04, 0), App.Vector(5.94, -0.53, 0)),  # 4
    Part.ArcOfCircle(Part.Circle(App.Vector(7.5, 0, 0), App.Vector(0, 0, 1), 1.65), math.radians(-178.54), math.radians(-161.11)),  # 5
    Part.LineSegment(App.Vector(5.85, -0.04, 0), App.Vector(9.06, 0.53, 0)),  # 6
    Part.ArcOfCircle(Part.Circle(App.Vector(7.5, 0, 0), App.Vector(0, 0, 1), 1.65), math.radians(1.46), math.radians(18.89)),  # 7
    Part.LineSegment(App.Vector(2.83, -1.62, 0), App.Vector(1.7, 1.44, 0)),  # 8
    Part.ArcOfCircle(Part.Circle(App.Vector(2.5, 0, 0), App.Vector(0, 0, 1), 1.65), math.radians(101.61), math.radians(119.04)),  # 9
    Part.LineSegment(App.Vector(2.17, 1.62, 0), App.Vector(3.3, -1.44, 0)),  # 10
    Part.ArcOfCircle(Part.Circle(App.Vector(2.5, 0, 0), App.Vector(0, 0, 1), 1.65), math.radians(-78.39), math.radians(-60.96)),  # 11
], False)
sketch12.addConstraint([
    Sketcher.Constraint("Coincident", 0, 2, 1, 2),
    Sketcher.Constraint("Coincident", 1, 1, 2, 1),
    Sketcher.Constraint("Coincident", 2, 2, 3, 2),
    Sketcher.Constraint("Coincident", 3, 1, 0, 1),
    Sketcher.Constraint("Coincident", 4, 2, 5, 2),
    Sketcher.Constraint("Coincident", 5, 1, 6, 1),
    Sketcher.Constraint("Coincident", 6, 2, 7, 2),
    Sketcher.Constraint("Coincident", 7, 1, 4, 1),
    Sketcher.Constraint("Coincident", 8, 2, 9, 2),
    Sketcher.Constraint("Coincident", 9, 1, 10, 1),
    Sketcher.Constraint("Coincident", 10, 2, 11, 2),
    Sketcher.Constraint("Coincident", 11, 1, 8, 1),
    Sketcher.Constraint("Coincident", 3, 3, 1, 3),
    Sketcher.Constraint("Coincident", 7, 3, 5, 3),
    Sketcher.Constraint("Coincident", 11, 3, 9, 3),
    Sketcher.Constraint("Equal", 1, 3),
    Sketcher.Constraint("Equal", 3, 5),
    Sketcher.Constraint("Equal", 5, 7),
    Sketcher.Constraint("Equal", 7, 9),
    Sketcher.Constraint("Equal", 9, 11),
    Sketcher.Constraint("Symmetric", 1, 3, 9, 3, -1, 1),
    Sketcher.Constraint("PointOnObject", 1, 3, -1),
    Sketcher.Constraint("PointOnObject", 5, 3, -1),
    Sketcher.Constraint("Parallel", 0, 2),
    Sketcher.Constraint("Parallel", 4, 6),
    Sketcher.Constraint("Parallel", 8, 10),
    Sketcher.Constraint("Equal", 0, 2),
    Sketcher.Constraint("Equal", 2, 4),
    Sketcher.Constraint("Equal", 4, 6),
    Sketcher.Constraint("Equal", 6, 8),
    Sketcher.Constraint("Equal", 8, 10),
    Sketcher.Constraint("Radius", 1, Q("1.65 mm")),
    Sketcher.Constraint("DistanceX", 3, 3, 5, 3, Q("10 mm")),
    Sketcher.Constraint("DistanceX", 9, 3, 5, 3, Q("5 mm")),
    Sketcher.Constraint("Distance", 0, Q("3.261901 mm")),
    Sketcher.Constraint("DistanceX", 0, 2, 8, 2, Q("3.524801 mm")),
    Sketcher.Constraint("DistanceX", 9, 1, 10, 2, Q("1.133199 mm")),
    Sketcher.Constraint("DistanceX", -1, 1, 5, 1, Q("5.850538 mm")),
])
sketch12.setExpression("Constraints[31]", "Params.sketch12_radius")
pocket7 = doc.addObject("PartDesign::Pocket", "Pocket006")
body.addObject(pocket7)
pocket7.Profile = sketch12
pocket7.setExpression("Length", "Params.pocket7_length")
pocket7.Reversed = True

# Sketch on YZ plane
sketch13 = doc.addObject("Sketcher::SketchObject", "Sketch012")
body.addObject(sketch13)
sketch13.AttachmentSupport = (doc.YZ_Plane, [""])
sketch13.MapMode = "FlatFace"
sketch13.AttachmentOffset = App.Placement(App.Vector(0, 0, -2.5), App.Rotation())
sketch13.addGeometry([
    Part.LineSegment(App.Vector(5.6, 2.45, 0), App.Vector(3.861674, 3.038876, 0)),  # 0
    Part.LineSegment(App.Vector(3.861674, 3.038876, 0), App.Vector(1.787609, 0.16717, 0)),  # 1
    Part.LineSegment(App.Vector(1.787609, 0.16717, 0), App.Vector(2.097431, -0.54636, 0)),  # 2
    Part.LineSegment(App.Vector(2.097431, -0.54636, 0), App.Vector(1.730526, -0.705674, 0)),  # 3
    Part.LineSegment(App.Vector(1.730526, -0.705674, 0), App.Vector(1.33, 0.216751, 0)),  # 4
    Part.LineSegment(App.Vector(1.33, 0.216751, 0), App.Vector(3.710313, 3.51248, 0)),  # 5
    Part.LineSegment(App.Vector(3.710313, 3.51248, 0), App.Vector(6, 2.736824, 0)),  # 6
    Part.LineSegment(App.Vector(6, 2.736824, 0), App.Vector(6, -1.8, 0)),  # 7
    Part.LineSegment(App.Vector(6, -1.8, 0), App.Vector(5.6, -1.8, 0)),  # 8
    Part.LineSegment(App.Vector(5.6, -1.8, 0), App.Vector(5.6, 2.45, 0)),  # 9
], False)
sketch13.addConstraint([
    Sketcher.Constraint("Coincident", 0, 2, 1, 1),
    Sketcher.Constraint("Coincident", 1, 2, 2, 1),
    Sketcher.Constraint("Coincident", 2, 2, 3, 1),
    Sketcher.Constraint("Coincident", 3, 2, 4, 1),
    Sketcher.Constraint("Coincident", 4, 2, 5, 1),
    Sketcher.Constraint("Coincident", 5, 2, 6, 1),
    Sketcher.Constraint("Coincident", 6, 2, 7, 1),
    Sketcher.Constraint("Coincident", 7, 2, 8, 1),
    Sketcher.Constraint("Coincident", 8, 2, 9, 1),
    Sketcher.Constraint("Coincident", 9, 2, 0, 1),
    Sketcher.Constraint("Vertical", 7),
    Sketcher.Constraint("Horizontal", 8),
    Sketcher.Constraint("Vertical", 9),
    Sketcher.Constraint("DistanceX", 8, 2, 8, 1, Q("0.4 mm")),
    Sketcher.Constraint("DistanceX", -1, 1, 6, 2, Q("6 mm")),
    Sketcher.Constraint("Distance", 3, Q("0.4 mm")),
    Sketcher.Constraint("DistanceY", 9, 1, 9, 2, Q("4.25 mm")),
    Sketcher.Constraint("DistanceY", 7, 2, -1, 1, Q("1.8 mm")),
    Sketcher.Constraint("DistanceX", -1, 1, 4, 2, Q("1.33 mm")),
    Sketcher.Constraint("Distance", 6, Q("2.417501 mm")),
    Sketcher.Constraint("Distance", 0, Q("1.835361 mm")),
    Sketcher.Constraint("Distance", 1, Q("3.542378 mm")),
    Sketcher.Constraint("Distance", 2, Q("0.777891 mm")),
    Sketcher.Constraint("Distance", 4, Q("1.005628 mm")),
    Sketcher.Constraint("Distance", 5, Q("4.06543 mm")),
    Sketcher.Constraint("DistanceY", 7, 2, 7, 1, Q("4.536824 mm")),
    Sketcher.Constraint("DistanceX", -1, 1, 1, 2, Q("1.787609 mm")),
    Sketcher.Constraint("DistanceY", -1, 1, 1, 2, Q("0.16717 mm")),
    Sketcher.Constraint("DistanceX", -1, 1, 2, 2, Q("2.097431 mm")),
    Sketcher.Constraint("DistanceY", -1, 1, 4, 2, Q("0.216751 mm")),
])
sketch13.setExpression("Constraints[13]", "Params.sketch13_width")
sketch13.setExpression("Constraints[15]", "Params.sketch13_length")
sketch13.setExpression("Constraints[16]", "Params.sketch13_height")
pad6 = doc.addObject("PartDesign::Pad", "Pad005")
body.addObject(pad6)
pad6.Profile = sketch13
pad6.setExpression("Length", "Params.pad6_length")
pad6.Midplane = True

# Sketch on an angled plane
sketch14 = doc.addObject("Sketcher::SketchObject", "Sketch013")
body.addObject(sketch14)
sketch14.Placement = App.Placement(App.Vector(0, 1.449355, 4.278404), App.Rotation(App.Vector(1, 0, 0), App.Vector(0, 0.947129893, -0.320850379), App.Vector(0, 0.320850379, 0.947129893), "ZXY"))
sketch14.addGeometry([
    Part.LineSegment(App.Vector(-1.6, 4.8, 0), App.Vector(-1.6, 2.9, 0)),  # 0
    Part.LineSegment(App.Vector(-1.6, 2.9, 0), App.Vector(-0.5, 4.8, 0)),  # 1
    Part.LineSegment(App.Vector(-0.5, 4.8, 0), App.Vector(-1.6, 4.8, 0)),  # 2
    Part.LineSegment(App.Vector(-3.4, 2.9, 0), App.Vector(-3.4, 4.8, 0)),  # 3
    Part.LineSegment(App.Vector(-3.4, 4.8, 0), App.Vector(-4.5, 4.8, 0)),  # 4
    Part.LineSegment(App.Vector(-4.5, 4.8, 0), App.Vector(-3.4, 2.9, 0)),  # 5
], False)
sketch14.addConstraint([
    Sketcher.Constraint("Coincident", 0, 2, 1, 1),
    Sketcher.Constraint("Coincident", 1, 2, 2, 1),
    Sketcher.Constraint("Coincident", 2, 2, 0, 1),
    Sketcher.Constraint("Coincident", 3, 2, 4, 1),
    Sketcher.Constraint("Coincident", 4, 2, 5, 1),
    Sketcher.Constraint("Coincident", 5, 2, 3, 1),
    Sketcher.Constraint("Vertical", 0),
    Sketcher.Constraint("Horizontal", 2),
    Sketcher.Constraint("Vertical", 3),
    Sketcher.Constraint("Horizontal", 4),
    Sketcher.Constraint("Horizontal", 2, 2, 3, 2),
    Sketcher.Constraint("Horizontal", 0, 2, 5, 2),
    Sketcher.Constraint("Equal", 2, 4),
    Sketcher.Constraint("DistanceY", -1, 1, 1, 2, Q("4.8 mm")),
    Sketcher.Constraint("DistanceX", 2, 2, 2, 1, Q("1.045 mm")),
    Sketcher.Constraint("DistanceX", 1, 2, -1, 1, Q("0.51 mm")),
    Sketcher.Constraint("DistanceX", 4, 2, -1, 1, Q("4.49 mm")),
    Sketcher.Constraint("DistanceY", 0, 2, 0, 1, Q("1.896031 mm")),
])
pad7 = doc.addObject("PartDesign::Pad", "Pad006")
body.addObject(pad7)
pad7.Profile = sketch14
pad7.setExpression("Length", "Params.pad7_length")
pad7.Reversed = True
doc.recompute()

linearpattern = doc.addObject("PartDesign::LinearPattern", "LinearPattern")
body.addObject(linearpattern)
linearpattern.Originals = [pad6, pad7]
linearpattern.Direction = (doc.X_Axis, [""])
linearpattern.Mode = "offset"
linearpattern.setExpression("Offset", "Params.linearpattern_pitch")
linearpattern.Occurrences = 3
body.Tip = linearpattern
doc.recompute()

fillet = doc.addObject("PartDesign::Fillet", "Fillet")
body.addObject(fillet)
fillet.Base = (linearpattern, edges_at(linearpattern, [
    (-2.5, 3.862, 3.039),
    (-2.5, 1.788, 0.167),
    (2.5, 3.862, 3.039),
    (2.5, 1.788, 0.167),
    (7.5, 3.862, 3.039),
    (7.5, 1.788, 0.167),
]))
fillet.setExpression("Radius", "Params.fillet_radius")
doc.recompute()

fillet2 = doc.addObject("PartDesign::Fillet", "Fillet001")
body.addObject(fillet2)
fillet2.Base = (fillet, edges_at(fillet, [
    (-2.5, 3.71, 3.512),
    (-2.5, 1.33, 0.217),
    (2.5, 1.33, 0.217),
    (2.5, 3.71, 3.512),
    (7.5, 3.71, 3.512),
    (7.5, 1.33, 0.217),
]))
fillet2.setExpression("Radius", "Params.fillet2_radius")

doc.recompute()
